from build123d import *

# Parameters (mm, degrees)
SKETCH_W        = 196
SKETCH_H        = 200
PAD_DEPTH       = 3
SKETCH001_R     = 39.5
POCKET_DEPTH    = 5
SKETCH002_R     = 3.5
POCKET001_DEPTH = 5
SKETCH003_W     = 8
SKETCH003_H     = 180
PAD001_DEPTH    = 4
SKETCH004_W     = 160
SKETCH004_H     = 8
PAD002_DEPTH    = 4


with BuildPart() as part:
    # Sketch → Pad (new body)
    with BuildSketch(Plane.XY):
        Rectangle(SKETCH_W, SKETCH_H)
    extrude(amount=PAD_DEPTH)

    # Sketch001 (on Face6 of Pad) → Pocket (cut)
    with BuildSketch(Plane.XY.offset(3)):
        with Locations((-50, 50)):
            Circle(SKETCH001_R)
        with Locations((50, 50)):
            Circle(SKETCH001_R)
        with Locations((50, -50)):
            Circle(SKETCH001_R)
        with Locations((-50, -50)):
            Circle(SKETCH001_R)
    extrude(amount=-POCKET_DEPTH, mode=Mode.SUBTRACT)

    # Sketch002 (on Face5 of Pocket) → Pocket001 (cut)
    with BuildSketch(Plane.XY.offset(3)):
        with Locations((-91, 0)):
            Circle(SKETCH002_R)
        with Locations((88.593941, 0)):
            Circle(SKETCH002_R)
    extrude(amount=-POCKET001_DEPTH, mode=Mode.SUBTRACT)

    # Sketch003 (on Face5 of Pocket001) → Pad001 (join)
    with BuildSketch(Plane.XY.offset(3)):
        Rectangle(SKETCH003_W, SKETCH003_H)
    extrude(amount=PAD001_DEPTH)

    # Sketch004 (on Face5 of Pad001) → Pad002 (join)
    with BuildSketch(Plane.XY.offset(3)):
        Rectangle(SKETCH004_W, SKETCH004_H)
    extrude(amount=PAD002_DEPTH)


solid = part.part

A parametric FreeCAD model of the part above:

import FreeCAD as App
import Part
import Sketcher

V = App.Vector

doc = App.newDocument("Part")
body = doc.addObject("PartDesign::Body", "Body")

sketch1 = doc.addObject("Sketcher::SketchObject", "Sketch")
body.addObject(sketch1)
sketch1.AttachmentSupport = (doc.XY_Plane, [""])
sketch1.MapMode = "FlatFace"
sketch1.addGeometry([
    Part.LineSegment(V(-98, 100, 0), V(-98, -100, 0)),
    Part.LineSegment(V(-98, -100, 0), V(98, -100, 0)),
    Part.LineSegment(V(98, -100, 0), V(98, 100, 0)),
    Part.LineSegment(V(98, 100, 0), V(-98, 100, 0)),
], False)
sketch1.addConstraint([
    Sketcher.Constraint("Coincident", 0, 2, 1, 1),
    Sketcher.Constraint("Coincident", 1, 2, 2, 1),
    Sketcher.Constraint("Coincident", 2, 2, 3, 1),
    Sketcher.Constraint("Coincident", 3, 2, 0, 1),
    Sketcher.Constraint("Vertical", 0),
    Sketcher.Constraint("Horizontal", 1),
    Sketcher.Constraint("Vertical", 2),
    Sketcher.Constraint("Horizontal", 3),
    Sketcher.Constraint("Symmetric", 0, 2, 2, 2, -1, 1),
    Sketcher.Constraint("DistanceX", 1, 1, 1, 2, 196.0),
    Sketcher.Constraint("DistanceY", 0, 2, 0, 1, 200.0),
])
pad1 = doc.addObject("PartDesign::Pad", "Pad")
body.addObject(pad1)
pad1.Profile = sketch1
pad1.Length = 3

sketch2 = doc.addObject("Sketcher::SketchObject", "Sketch001")
body.addObject(sketch2)
sketch2.AttachmentSupport = (doc.XY_Plane, [""])
sketch2.MapMode = "FlatFace"
sketch2.AttachmentOffset = App.Placement(V(0, 0, 3), App.Rotation())
sketch2.addGeometry([
    Part.Circle(V(-50, 50, 0), V(0, 0, 1), 39.5),
    Part.Circle(V(50, 50, 0), V(0, 0, 1), 39.5),
    Part.Circle(V(50, -50, 0), V(0, 0, 1), 39.5),
    Part.Circle(V(-50, -50, 0), V(0, 0, 1), 39.5),
], False)
sketch2.addConstraint([
    Sketcher.Constraint("Equal", 0, 1),
    Sketcher.Constraint("Equal", 1, 2),
    Sketcher.Constraint("Equal", 2, 3),
    Sketcher.Constraint("Symmetric", 0, 3, 2, 3, -1, 1),
    Sketcher.Constraint("Symmetric", 1, 3, 3, 3, -1, 1),
    Sketcher.Constraint("Symmetric", 0, 3, 1, 3, -2),
    Sketcher.Constraint("Diameter", 0, 79.0),
    Sketcher.Constraint("DistanceX", 0, 3, -1, 1, 50.0),
    Sketcher.Constraint("DistanceY", -1, 1, 0, 3, 50.0),
])
pocket1 = doc.addObject("PartDesign::Pocket", "Pocket")
body.addObject(pocket1)
pocket1.Profile = sketch2
pocket1.Length = 5

sketch3 = doc.addObject("Sketcher::SketchObject", "Sketch002")
body.addObject(sketch3)
sketch3.AttachmentSupport = (doc.XY_Plane, [""])
sketch3.MapMode = "FlatFace"
sketch3.AttachmentOffset = App.Placement(V(0, 0, 3), App.Rotation())
sketch3.addGeometry([
    Part.Circle(V(-91, 0, 0), V(0, 0, 1), 3.5),
    Part.Circle(V(88.593941, 0, 0), V(0, 0, 1), 3.5),
], False)
sketch3.addConstraint([
    Sketcher.Constraint("Equal", 0, 1),
    Sketcher.Constraint("PointOnObject", 0, 3, -1),
    Sketcher.Constraint("PointOnObject", 1, 3, -1),
    Sketcher.Constraint("Diameter", 0, 7.0),
    Sketcher.Constraint("DistanceX", 0, 3, -1, 1, 91.0),
    Sketcher.Constraint("DistanceX", -1, 1, 1, 3, 88.593941),
])
pocket2 = doc.addObject("PartDesign::Pocket", "Pocket001")
body.addObject(pocket2)
pocket2.Profile = sketch3
pocket2.Length = 5

sketch4 = doc.addObject("Sketcher::SketchObject", "Sketch003")
body.addObject(sketch4)
sketch4.AttachmentSupport = (doc.XY_Plane, [""])
sketch4.MapMode = "FlatFace"
sketch4.AttachmentOffset = App.Placement(V(0, 0, 3), App.Rotation())
sketch4.addGeometry([
    Part.LineSegment(V(-4, 90, 0), V(-4, -90, 0)),
    Part.LineSegment(V(-4, -90, 0), V(4, -90, 0)),
    Part.LineSegment(V(4, -90, 0), V(4, 90, 0)),
    Part.LineSegment(V(4, 90, 0), V(-4, 90, 0)),
], False)
sketch4.addConstraint([
    Sketcher.Constraint("Coincident", 0, 2, 1, 1),
    Sketcher.Constraint("Coincident", 1, 2, 2, 1),
    Sketcher.Constraint("Coincident", 2, 2, 3, 1),
    Sketcher.Constraint("Coincident", 3, 2, 0, 1),
    Sketcher.Constraint("Vertical", 0),
    Sketcher.Constraint("Horizontal", 1),
    Sketcher.Constraint("Vertical", 2),
    Sketcher.Constraint("Horizontal", 3),
    Sketcher.Constraint("Symmetric", 0, 2, 2, 2, -1, 1),
    Sketcher.Constraint("DistanceX", 1, 1, 1, 2, 8.0),
    Sketcher.Constraint("DistanceY", 0, 2, 0, 1, 180.0),
])
pad2 = doc.addObject("PartDesign::Pad", "Pad001")
body.addObject(pad2)
pad2.Profile = sketch4
pad2.Length = 4

sketch5 = doc.addObject("Sketcher::SketchObject", "Sketch004")
body.addObject(sketch5)
sketch5.AttachmentSupport = (doc.XY_Plane, [""])
sketch5.MapMode = "FlatFace"
sketch5.AttachmentOffset = App.Placement(V(0, 0, 3), App.Rotation())
sketch5.addGeometry([
    Part.LineSegment(V(-80, 4, 0), V(-80, -4, 0)),
    Part.LineSegment(V(-80, -4, 0), V(80, -4, 0)),
    Part.LineSegment(V(80, -4, 0), V(80, 4, 0)),
    Part.LineSegment(V(80, 4, 0), V(-80, 4, 0)),
], False)
sketch5.addConstraint([
    Sketcher.Constraint("Coincident", 0, 2, 1, 1),
    Sketcher.Constraint("Coincident", 1, 2, 2, 1),
    Sketcher.Constraint("Coincident", 2, 2, 3, 1),
    Sketcher.Constraint("Coincident", 3, 2, 0, 1),
    Sketcher.Constraint("Vertical", 0),
    Sketcher.Constraint("Horizontal", 1),
    Sketcher.Constraint("Vertical", 2),
    Sketcher.Constraint("Horizontal", 3),
    Sketcher.Constraint("Symmetric", 0, 2, 2, 2, -1, 1),
    Sketcher.Constraint("DistanceX", 1, 1, 1, 2, 160.0),
    Sketcher.Constraint("DistanceY", 0, 2, 0, 1, 8.0),
])
pad3 = doc.addObject("PartDesign::Pad", "Pad002")
body.addObject(pad3)
pad3.Profile = sketch5
pad3.Length = 4

doc.recompute()
